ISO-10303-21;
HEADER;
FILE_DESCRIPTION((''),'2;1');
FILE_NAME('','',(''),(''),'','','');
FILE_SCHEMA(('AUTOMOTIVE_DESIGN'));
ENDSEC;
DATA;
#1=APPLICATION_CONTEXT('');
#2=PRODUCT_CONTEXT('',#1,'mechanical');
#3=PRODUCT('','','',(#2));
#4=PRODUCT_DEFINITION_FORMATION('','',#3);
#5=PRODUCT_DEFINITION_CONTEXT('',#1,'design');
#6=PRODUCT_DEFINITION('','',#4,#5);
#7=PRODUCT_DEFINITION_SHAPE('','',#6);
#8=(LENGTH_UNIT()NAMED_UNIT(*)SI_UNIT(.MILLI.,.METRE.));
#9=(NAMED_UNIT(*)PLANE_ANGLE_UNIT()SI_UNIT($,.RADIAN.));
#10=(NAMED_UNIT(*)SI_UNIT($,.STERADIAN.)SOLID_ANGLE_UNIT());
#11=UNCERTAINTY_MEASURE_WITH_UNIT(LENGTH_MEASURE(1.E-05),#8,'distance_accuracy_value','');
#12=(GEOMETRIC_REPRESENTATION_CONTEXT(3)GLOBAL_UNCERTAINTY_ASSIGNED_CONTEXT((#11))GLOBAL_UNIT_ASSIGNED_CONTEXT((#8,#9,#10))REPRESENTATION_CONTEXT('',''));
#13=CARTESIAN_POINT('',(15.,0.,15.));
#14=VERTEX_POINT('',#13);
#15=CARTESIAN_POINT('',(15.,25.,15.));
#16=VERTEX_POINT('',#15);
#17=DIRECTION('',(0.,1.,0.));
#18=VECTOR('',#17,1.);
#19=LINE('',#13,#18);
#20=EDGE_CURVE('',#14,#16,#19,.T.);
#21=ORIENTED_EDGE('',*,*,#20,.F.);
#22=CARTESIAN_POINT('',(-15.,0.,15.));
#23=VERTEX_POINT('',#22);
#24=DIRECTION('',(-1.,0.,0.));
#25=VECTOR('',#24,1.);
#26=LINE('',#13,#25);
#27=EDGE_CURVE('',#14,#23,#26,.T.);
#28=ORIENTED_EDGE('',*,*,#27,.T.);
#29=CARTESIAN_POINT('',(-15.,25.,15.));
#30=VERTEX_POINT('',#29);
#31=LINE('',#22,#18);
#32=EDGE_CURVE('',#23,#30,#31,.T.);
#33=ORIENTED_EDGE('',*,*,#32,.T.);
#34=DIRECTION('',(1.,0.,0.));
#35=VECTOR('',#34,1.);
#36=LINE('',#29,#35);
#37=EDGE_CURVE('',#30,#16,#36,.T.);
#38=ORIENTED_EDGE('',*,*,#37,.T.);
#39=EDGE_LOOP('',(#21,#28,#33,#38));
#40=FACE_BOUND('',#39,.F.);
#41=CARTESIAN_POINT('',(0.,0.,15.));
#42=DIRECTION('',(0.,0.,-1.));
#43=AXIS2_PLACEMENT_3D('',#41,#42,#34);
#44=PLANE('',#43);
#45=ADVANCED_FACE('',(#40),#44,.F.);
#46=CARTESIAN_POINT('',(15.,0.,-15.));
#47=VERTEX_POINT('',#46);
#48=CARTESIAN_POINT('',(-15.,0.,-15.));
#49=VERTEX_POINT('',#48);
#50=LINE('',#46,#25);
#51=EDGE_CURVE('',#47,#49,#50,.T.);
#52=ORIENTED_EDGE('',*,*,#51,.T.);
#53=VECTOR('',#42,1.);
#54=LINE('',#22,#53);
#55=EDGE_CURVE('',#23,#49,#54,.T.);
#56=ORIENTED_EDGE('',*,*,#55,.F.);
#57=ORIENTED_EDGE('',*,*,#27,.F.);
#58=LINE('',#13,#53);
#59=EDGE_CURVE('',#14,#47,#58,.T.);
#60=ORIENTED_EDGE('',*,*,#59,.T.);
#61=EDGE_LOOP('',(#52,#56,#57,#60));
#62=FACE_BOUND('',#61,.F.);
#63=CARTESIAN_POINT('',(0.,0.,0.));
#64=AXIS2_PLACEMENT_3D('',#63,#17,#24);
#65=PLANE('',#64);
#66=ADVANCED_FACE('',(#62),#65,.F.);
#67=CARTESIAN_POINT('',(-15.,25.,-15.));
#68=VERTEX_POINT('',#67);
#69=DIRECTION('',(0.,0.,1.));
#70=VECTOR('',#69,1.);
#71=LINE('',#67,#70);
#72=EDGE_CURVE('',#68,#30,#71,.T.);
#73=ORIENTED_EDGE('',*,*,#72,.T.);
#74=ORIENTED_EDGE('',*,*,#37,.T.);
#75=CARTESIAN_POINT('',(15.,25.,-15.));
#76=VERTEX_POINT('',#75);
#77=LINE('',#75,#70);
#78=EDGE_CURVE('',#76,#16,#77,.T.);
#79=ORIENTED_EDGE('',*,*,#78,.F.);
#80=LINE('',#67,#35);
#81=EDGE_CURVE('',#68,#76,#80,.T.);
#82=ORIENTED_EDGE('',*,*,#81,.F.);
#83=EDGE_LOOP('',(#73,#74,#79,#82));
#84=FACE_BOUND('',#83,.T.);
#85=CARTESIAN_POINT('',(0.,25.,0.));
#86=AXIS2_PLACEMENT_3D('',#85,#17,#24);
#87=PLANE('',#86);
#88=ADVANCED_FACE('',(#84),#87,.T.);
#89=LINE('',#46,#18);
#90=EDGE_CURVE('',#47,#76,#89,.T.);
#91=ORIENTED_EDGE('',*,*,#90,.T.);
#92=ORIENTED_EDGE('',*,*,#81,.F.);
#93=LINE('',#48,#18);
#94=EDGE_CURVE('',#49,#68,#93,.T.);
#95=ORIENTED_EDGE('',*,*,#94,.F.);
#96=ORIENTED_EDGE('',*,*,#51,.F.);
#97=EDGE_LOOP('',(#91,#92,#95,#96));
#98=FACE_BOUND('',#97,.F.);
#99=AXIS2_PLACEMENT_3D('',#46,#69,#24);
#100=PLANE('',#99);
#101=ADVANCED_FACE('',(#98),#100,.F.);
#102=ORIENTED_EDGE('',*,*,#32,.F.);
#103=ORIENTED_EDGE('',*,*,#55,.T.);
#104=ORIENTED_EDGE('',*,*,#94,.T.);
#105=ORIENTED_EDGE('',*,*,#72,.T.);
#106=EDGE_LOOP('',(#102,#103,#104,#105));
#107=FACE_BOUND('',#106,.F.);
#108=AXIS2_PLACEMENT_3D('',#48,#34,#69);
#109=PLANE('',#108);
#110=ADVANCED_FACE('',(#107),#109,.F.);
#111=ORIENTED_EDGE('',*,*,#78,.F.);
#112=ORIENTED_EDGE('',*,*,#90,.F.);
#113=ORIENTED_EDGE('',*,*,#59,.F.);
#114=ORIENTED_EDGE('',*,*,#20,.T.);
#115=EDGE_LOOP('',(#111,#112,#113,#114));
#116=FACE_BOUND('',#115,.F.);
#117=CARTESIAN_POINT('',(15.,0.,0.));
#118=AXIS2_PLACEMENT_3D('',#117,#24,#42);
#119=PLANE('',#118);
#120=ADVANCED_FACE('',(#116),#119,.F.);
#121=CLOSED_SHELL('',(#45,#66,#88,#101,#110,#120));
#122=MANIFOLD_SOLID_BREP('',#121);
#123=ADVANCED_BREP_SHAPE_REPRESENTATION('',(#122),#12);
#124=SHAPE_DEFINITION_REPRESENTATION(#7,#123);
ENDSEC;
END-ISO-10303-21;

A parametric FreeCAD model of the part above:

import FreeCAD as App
import Part
import Sketcher
Q = App.Units.Quantity

doc = App.newDocument("Part")
body = doc.addObject("PartDesign::Body", "Body")

sketch1 = doc.addObject("Sketcher::SketchObject", "Sketch")
body.addObject(sketch1)
sketch1.AttachmentSupport = (doc.XZ_Plane, [""])
sketch1.MapMode = "FlatFace"
sketch1.addGeometry([
    Part.LineSegment(App.Vector(15, -15, 0), App.Vector(-15, -15, 0)),
    Part.LineSegment(App.Vector(-15, -15, 0), App.Vector(-15, 15, 0)),
    Part.LineSegment(App.Vector(-15, 15, 0), App.Vector(15, 15, 0)),
    Part.LineSegment(App.Vector(15, 15, 0), App.Vector(15, -15, 0)),
], False)
sketch1.addConstraint([
    Sketcher.Constraint("Coincident", 0, 2, 1, 1),
    Sketcher.Constraint("Coincident", 1, 2, 2, 1),
    Sketcher.Constraint("Coincident", 2, 2, 3, 1),
    Sketcher.Constraint("Coincident", 3, 2, 0, 1),
    Sketcher.Constraint("Horizontal", 0),
    Sketcher.Constraint("Vertical", 1),
    Sketcher.Constraint("Horizontal", 2),
    Sketcher.Constraint("Vertical", 3),
    Sketcher.Constraint("Symmetric", 0, 2, 2, 2, -1, 1),
    Sketcher.Constraint("Equal", 2, 1),
    Sketcher.Constraint("DistanceX", 0, 2, 0, 1, Q("30 mm")),
])
pad1 = doc.addObject("PartDesign::Pad", "Pad")
body.addObject(pad1)
pad1.Profile = sketch1
pad1.Length = 25
pad1.Reversed = True

doc.recompute()
